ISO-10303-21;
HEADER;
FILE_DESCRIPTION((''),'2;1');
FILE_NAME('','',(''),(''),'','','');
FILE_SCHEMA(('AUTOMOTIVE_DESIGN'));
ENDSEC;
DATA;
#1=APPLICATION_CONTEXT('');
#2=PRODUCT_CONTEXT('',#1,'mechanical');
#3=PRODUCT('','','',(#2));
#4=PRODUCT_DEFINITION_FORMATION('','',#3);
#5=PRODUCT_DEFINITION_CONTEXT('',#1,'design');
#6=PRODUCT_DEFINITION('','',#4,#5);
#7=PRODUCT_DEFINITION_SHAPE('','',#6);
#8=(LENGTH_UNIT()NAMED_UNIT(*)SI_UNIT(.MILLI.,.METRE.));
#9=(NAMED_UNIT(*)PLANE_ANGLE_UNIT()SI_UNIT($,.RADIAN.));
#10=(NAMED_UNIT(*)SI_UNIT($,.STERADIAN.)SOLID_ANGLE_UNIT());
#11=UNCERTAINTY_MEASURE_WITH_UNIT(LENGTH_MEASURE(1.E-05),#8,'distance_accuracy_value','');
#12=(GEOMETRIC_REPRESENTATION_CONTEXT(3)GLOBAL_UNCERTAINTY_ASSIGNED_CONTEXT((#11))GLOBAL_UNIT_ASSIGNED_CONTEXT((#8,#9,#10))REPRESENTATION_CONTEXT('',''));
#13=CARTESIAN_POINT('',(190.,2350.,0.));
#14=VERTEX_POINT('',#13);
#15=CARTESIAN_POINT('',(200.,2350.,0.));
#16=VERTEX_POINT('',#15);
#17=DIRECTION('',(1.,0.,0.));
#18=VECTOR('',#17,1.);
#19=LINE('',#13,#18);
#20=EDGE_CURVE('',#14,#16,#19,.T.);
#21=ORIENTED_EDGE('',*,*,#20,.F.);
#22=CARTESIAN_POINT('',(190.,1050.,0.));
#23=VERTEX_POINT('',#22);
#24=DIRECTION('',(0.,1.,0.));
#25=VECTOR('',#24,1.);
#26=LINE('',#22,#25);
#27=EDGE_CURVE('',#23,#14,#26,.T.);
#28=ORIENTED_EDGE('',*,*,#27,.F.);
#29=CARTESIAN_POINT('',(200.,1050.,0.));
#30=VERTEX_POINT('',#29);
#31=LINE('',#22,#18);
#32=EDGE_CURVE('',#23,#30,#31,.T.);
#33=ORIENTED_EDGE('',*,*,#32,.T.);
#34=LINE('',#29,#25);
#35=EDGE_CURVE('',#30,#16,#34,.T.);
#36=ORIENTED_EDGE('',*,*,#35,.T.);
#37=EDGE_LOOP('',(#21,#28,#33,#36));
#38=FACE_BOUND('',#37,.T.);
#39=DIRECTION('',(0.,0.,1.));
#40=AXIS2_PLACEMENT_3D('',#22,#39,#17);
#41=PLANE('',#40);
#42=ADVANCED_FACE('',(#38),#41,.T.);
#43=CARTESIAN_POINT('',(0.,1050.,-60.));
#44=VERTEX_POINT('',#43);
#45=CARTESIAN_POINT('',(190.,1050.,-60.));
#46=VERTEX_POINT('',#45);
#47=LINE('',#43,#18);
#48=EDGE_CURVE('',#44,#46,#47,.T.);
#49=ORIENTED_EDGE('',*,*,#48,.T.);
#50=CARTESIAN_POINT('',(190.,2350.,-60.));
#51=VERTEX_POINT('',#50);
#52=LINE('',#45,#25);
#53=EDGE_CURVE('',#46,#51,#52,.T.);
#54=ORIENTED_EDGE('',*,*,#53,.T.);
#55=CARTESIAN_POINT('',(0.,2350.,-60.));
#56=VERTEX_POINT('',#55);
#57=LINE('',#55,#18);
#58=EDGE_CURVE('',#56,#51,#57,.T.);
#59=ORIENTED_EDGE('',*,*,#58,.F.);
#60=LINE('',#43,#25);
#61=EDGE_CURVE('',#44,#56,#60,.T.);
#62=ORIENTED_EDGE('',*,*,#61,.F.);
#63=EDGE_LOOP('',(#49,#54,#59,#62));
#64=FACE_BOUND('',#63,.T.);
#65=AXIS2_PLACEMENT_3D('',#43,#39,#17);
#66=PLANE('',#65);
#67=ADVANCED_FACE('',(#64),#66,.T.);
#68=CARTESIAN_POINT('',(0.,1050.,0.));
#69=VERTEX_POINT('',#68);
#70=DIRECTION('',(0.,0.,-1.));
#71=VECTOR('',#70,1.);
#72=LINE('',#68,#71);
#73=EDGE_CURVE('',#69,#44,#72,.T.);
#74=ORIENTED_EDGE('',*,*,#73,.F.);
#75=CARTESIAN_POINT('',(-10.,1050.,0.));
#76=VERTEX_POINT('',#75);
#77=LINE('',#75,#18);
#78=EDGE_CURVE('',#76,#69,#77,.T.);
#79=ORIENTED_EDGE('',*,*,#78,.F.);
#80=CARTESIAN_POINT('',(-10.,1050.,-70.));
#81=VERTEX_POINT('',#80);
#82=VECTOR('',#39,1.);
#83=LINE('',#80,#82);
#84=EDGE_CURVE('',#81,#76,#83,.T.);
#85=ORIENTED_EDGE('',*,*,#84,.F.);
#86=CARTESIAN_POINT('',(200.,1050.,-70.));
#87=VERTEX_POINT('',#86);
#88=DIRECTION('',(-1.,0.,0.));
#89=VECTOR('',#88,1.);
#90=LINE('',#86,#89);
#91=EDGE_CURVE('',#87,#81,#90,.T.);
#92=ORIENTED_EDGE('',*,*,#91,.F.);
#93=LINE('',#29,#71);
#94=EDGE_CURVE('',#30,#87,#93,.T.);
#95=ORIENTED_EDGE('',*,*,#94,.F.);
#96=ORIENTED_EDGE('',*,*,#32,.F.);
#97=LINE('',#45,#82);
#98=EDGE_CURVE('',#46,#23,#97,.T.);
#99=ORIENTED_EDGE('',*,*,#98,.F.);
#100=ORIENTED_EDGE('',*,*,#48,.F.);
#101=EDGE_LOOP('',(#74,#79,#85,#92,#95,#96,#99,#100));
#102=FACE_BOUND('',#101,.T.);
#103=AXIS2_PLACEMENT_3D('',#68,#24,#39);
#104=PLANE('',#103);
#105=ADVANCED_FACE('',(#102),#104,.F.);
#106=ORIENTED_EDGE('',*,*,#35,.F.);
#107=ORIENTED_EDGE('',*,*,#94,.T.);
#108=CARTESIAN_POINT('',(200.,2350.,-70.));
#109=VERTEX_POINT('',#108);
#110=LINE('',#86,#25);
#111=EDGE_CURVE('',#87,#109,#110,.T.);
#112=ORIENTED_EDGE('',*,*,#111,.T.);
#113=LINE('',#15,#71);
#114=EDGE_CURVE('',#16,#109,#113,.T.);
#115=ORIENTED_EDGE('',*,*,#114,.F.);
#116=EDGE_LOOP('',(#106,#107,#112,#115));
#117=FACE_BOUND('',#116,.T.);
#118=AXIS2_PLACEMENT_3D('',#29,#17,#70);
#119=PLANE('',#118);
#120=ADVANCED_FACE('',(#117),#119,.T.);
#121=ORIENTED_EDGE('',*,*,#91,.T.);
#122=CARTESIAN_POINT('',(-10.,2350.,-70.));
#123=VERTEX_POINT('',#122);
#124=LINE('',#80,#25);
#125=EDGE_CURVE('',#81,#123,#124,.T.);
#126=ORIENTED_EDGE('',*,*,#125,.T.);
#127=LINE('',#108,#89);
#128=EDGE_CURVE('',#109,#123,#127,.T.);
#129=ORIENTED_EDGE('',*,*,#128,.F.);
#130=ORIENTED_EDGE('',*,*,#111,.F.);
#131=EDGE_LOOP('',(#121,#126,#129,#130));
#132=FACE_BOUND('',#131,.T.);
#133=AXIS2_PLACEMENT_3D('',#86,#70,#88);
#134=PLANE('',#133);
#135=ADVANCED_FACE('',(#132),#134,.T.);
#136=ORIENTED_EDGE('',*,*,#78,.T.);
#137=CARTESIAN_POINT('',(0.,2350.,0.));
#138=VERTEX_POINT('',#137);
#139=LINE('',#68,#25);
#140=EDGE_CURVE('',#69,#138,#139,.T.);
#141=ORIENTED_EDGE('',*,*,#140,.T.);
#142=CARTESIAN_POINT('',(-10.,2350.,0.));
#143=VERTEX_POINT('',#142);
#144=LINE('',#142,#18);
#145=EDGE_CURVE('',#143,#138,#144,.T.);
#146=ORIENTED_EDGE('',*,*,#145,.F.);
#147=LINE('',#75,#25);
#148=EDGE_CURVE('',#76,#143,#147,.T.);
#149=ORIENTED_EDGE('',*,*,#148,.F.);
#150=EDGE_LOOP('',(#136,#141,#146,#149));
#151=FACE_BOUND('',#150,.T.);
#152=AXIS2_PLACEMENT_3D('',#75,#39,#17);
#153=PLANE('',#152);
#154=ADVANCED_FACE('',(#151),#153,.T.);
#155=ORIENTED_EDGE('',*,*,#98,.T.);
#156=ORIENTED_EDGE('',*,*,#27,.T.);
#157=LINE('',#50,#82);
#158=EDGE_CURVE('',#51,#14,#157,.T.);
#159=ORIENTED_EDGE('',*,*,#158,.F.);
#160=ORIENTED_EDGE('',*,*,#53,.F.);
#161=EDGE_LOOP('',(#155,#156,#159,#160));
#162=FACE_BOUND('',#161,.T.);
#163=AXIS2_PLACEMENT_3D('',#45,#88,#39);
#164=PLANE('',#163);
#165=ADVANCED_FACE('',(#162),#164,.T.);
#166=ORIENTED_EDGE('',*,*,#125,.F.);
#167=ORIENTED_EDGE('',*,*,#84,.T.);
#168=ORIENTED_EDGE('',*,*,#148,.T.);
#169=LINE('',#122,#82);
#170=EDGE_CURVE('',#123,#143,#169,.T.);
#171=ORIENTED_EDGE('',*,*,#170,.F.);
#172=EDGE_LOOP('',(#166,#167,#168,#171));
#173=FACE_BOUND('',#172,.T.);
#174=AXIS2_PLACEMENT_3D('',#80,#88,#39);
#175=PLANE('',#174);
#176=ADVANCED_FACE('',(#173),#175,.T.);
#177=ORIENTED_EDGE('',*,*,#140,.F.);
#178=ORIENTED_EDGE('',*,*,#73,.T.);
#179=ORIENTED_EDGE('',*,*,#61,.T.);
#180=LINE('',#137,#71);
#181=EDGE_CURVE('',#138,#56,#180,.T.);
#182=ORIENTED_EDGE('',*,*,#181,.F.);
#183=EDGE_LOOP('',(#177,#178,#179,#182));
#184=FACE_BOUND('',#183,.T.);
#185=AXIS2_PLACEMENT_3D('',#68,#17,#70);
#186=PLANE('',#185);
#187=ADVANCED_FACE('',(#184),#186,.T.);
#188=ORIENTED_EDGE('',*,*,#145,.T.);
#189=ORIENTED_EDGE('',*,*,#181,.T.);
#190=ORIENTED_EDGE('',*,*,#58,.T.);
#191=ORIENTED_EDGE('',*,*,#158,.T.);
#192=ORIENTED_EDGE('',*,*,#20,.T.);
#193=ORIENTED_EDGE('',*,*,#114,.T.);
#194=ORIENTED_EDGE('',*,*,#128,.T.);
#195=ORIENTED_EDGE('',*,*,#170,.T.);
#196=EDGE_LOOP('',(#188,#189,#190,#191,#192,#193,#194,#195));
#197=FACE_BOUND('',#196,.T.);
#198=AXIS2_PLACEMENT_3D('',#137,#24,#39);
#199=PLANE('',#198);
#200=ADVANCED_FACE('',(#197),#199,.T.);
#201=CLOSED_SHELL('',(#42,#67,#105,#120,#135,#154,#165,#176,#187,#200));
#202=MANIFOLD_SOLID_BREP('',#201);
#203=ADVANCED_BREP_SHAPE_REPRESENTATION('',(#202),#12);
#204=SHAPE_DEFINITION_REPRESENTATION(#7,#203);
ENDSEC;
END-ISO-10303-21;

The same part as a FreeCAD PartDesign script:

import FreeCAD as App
import Part
import Sketcher

V = App.Vector

doc = App.newDocument("Part")
body = doc.addObject("PartDesign::Body", "Body")

# Sketch on XZ plane
sketch1 = body.newObject("Sketcher::SketchObject", "Sketch")
sketch1.AttachmentSupport = (doc.getObject("XZ_Plane"), [""])
sketch1.MapMode = "FlatFace"
sketch1.AttachmentOffset = App.Placement(V(0, 0, -2350), App.Rotation())
sketch1.addGeometry([
    Part.LineSegment(V(-10, -70, 0), V(-10, 0, 0)),  # 0
    Part.LineSegment(V(-10, 0, 0), V(0, 0, 0)),  # 1
    Part.LineSegment(V(0, 0, 0), V(0, -60, 0)),  # 2
    Part.LineSegment(V(0, -60, 0), V(190, -60, 0)),  # 3
    Part.LineSegment(V(190, -60, 0), V(190, 0, 0)),  # 4
    Part.LineSegment(V(190, 0, 0), V(200, 0, 0)),  # 5
    Part.LineSegment(V(200, 0, 0), V(200, -70, 0)),  # 6
    Part.LineSegment(V(200, -70, 0), V(-10, -70, 0)),  # 7
], False)
sketch1.addConstraint([
    Sketcher.Constraint("Coincident", 0, 2, 1, 1),
    Sketcher.Constraint("Coincident", 1, 2, 2, 1),
    Sketcher.Constraint("Coincident", 2, 2, 3, 1),
    Sketcher.Constraint("Coincident", 3, 2, 4, 1),
    Sketcher.Constraint("Coincident", 4, 2, 5, 1),
    Sketcher.Constraint("Coincident", 5, 2, 6, 1),
    Sketcher.Constraint("Coincident", 6, 2, 7, 1),
    Sketcher.Constraint("Coincident", 7, 2, 0, 1),
    Sketcher.Constraint("Vertical", 0),
    Sketcher.Constraint("Horizontal", 1),
    Sketcher.Constraint("Vertical", 2),
    Sketcher.Constraint("Horizontal", 3),
    Sketcher.Constraint("Vertical", 4),
    Sketcher.Constraint("Horizontal", 5),
    Sketcher.Constraint("Vertical", 6),
    Sketcher.Constraint("Horizontal", 7),
    Sketcher.Constraint("Coincident", 1, 2, -1, 1),
    Sketcher.Constraint("PointOnObject", 4, 2, -1),
    Sketcher.Constraint("Equal", 1, 5),
    Sketcher.Constraint("DistanceX", 1, 1, 1, 2, 10.0),
    Sketcher.Constraint("DistanceX", 3, 1, 3, 2, 190.0),
    Sketcher.Constraint("DistanceY", 0, 1, 0, 2, 70.0),
    Sketcher.Constraint("DistanceY", 2, 2, 2, 1, 60.0),
])
pad1 = body.newObject("PartDesign::Pad", "Pad")
pad1.Profile = sketch1
pad1.Length = 1300

doc.recompute()
